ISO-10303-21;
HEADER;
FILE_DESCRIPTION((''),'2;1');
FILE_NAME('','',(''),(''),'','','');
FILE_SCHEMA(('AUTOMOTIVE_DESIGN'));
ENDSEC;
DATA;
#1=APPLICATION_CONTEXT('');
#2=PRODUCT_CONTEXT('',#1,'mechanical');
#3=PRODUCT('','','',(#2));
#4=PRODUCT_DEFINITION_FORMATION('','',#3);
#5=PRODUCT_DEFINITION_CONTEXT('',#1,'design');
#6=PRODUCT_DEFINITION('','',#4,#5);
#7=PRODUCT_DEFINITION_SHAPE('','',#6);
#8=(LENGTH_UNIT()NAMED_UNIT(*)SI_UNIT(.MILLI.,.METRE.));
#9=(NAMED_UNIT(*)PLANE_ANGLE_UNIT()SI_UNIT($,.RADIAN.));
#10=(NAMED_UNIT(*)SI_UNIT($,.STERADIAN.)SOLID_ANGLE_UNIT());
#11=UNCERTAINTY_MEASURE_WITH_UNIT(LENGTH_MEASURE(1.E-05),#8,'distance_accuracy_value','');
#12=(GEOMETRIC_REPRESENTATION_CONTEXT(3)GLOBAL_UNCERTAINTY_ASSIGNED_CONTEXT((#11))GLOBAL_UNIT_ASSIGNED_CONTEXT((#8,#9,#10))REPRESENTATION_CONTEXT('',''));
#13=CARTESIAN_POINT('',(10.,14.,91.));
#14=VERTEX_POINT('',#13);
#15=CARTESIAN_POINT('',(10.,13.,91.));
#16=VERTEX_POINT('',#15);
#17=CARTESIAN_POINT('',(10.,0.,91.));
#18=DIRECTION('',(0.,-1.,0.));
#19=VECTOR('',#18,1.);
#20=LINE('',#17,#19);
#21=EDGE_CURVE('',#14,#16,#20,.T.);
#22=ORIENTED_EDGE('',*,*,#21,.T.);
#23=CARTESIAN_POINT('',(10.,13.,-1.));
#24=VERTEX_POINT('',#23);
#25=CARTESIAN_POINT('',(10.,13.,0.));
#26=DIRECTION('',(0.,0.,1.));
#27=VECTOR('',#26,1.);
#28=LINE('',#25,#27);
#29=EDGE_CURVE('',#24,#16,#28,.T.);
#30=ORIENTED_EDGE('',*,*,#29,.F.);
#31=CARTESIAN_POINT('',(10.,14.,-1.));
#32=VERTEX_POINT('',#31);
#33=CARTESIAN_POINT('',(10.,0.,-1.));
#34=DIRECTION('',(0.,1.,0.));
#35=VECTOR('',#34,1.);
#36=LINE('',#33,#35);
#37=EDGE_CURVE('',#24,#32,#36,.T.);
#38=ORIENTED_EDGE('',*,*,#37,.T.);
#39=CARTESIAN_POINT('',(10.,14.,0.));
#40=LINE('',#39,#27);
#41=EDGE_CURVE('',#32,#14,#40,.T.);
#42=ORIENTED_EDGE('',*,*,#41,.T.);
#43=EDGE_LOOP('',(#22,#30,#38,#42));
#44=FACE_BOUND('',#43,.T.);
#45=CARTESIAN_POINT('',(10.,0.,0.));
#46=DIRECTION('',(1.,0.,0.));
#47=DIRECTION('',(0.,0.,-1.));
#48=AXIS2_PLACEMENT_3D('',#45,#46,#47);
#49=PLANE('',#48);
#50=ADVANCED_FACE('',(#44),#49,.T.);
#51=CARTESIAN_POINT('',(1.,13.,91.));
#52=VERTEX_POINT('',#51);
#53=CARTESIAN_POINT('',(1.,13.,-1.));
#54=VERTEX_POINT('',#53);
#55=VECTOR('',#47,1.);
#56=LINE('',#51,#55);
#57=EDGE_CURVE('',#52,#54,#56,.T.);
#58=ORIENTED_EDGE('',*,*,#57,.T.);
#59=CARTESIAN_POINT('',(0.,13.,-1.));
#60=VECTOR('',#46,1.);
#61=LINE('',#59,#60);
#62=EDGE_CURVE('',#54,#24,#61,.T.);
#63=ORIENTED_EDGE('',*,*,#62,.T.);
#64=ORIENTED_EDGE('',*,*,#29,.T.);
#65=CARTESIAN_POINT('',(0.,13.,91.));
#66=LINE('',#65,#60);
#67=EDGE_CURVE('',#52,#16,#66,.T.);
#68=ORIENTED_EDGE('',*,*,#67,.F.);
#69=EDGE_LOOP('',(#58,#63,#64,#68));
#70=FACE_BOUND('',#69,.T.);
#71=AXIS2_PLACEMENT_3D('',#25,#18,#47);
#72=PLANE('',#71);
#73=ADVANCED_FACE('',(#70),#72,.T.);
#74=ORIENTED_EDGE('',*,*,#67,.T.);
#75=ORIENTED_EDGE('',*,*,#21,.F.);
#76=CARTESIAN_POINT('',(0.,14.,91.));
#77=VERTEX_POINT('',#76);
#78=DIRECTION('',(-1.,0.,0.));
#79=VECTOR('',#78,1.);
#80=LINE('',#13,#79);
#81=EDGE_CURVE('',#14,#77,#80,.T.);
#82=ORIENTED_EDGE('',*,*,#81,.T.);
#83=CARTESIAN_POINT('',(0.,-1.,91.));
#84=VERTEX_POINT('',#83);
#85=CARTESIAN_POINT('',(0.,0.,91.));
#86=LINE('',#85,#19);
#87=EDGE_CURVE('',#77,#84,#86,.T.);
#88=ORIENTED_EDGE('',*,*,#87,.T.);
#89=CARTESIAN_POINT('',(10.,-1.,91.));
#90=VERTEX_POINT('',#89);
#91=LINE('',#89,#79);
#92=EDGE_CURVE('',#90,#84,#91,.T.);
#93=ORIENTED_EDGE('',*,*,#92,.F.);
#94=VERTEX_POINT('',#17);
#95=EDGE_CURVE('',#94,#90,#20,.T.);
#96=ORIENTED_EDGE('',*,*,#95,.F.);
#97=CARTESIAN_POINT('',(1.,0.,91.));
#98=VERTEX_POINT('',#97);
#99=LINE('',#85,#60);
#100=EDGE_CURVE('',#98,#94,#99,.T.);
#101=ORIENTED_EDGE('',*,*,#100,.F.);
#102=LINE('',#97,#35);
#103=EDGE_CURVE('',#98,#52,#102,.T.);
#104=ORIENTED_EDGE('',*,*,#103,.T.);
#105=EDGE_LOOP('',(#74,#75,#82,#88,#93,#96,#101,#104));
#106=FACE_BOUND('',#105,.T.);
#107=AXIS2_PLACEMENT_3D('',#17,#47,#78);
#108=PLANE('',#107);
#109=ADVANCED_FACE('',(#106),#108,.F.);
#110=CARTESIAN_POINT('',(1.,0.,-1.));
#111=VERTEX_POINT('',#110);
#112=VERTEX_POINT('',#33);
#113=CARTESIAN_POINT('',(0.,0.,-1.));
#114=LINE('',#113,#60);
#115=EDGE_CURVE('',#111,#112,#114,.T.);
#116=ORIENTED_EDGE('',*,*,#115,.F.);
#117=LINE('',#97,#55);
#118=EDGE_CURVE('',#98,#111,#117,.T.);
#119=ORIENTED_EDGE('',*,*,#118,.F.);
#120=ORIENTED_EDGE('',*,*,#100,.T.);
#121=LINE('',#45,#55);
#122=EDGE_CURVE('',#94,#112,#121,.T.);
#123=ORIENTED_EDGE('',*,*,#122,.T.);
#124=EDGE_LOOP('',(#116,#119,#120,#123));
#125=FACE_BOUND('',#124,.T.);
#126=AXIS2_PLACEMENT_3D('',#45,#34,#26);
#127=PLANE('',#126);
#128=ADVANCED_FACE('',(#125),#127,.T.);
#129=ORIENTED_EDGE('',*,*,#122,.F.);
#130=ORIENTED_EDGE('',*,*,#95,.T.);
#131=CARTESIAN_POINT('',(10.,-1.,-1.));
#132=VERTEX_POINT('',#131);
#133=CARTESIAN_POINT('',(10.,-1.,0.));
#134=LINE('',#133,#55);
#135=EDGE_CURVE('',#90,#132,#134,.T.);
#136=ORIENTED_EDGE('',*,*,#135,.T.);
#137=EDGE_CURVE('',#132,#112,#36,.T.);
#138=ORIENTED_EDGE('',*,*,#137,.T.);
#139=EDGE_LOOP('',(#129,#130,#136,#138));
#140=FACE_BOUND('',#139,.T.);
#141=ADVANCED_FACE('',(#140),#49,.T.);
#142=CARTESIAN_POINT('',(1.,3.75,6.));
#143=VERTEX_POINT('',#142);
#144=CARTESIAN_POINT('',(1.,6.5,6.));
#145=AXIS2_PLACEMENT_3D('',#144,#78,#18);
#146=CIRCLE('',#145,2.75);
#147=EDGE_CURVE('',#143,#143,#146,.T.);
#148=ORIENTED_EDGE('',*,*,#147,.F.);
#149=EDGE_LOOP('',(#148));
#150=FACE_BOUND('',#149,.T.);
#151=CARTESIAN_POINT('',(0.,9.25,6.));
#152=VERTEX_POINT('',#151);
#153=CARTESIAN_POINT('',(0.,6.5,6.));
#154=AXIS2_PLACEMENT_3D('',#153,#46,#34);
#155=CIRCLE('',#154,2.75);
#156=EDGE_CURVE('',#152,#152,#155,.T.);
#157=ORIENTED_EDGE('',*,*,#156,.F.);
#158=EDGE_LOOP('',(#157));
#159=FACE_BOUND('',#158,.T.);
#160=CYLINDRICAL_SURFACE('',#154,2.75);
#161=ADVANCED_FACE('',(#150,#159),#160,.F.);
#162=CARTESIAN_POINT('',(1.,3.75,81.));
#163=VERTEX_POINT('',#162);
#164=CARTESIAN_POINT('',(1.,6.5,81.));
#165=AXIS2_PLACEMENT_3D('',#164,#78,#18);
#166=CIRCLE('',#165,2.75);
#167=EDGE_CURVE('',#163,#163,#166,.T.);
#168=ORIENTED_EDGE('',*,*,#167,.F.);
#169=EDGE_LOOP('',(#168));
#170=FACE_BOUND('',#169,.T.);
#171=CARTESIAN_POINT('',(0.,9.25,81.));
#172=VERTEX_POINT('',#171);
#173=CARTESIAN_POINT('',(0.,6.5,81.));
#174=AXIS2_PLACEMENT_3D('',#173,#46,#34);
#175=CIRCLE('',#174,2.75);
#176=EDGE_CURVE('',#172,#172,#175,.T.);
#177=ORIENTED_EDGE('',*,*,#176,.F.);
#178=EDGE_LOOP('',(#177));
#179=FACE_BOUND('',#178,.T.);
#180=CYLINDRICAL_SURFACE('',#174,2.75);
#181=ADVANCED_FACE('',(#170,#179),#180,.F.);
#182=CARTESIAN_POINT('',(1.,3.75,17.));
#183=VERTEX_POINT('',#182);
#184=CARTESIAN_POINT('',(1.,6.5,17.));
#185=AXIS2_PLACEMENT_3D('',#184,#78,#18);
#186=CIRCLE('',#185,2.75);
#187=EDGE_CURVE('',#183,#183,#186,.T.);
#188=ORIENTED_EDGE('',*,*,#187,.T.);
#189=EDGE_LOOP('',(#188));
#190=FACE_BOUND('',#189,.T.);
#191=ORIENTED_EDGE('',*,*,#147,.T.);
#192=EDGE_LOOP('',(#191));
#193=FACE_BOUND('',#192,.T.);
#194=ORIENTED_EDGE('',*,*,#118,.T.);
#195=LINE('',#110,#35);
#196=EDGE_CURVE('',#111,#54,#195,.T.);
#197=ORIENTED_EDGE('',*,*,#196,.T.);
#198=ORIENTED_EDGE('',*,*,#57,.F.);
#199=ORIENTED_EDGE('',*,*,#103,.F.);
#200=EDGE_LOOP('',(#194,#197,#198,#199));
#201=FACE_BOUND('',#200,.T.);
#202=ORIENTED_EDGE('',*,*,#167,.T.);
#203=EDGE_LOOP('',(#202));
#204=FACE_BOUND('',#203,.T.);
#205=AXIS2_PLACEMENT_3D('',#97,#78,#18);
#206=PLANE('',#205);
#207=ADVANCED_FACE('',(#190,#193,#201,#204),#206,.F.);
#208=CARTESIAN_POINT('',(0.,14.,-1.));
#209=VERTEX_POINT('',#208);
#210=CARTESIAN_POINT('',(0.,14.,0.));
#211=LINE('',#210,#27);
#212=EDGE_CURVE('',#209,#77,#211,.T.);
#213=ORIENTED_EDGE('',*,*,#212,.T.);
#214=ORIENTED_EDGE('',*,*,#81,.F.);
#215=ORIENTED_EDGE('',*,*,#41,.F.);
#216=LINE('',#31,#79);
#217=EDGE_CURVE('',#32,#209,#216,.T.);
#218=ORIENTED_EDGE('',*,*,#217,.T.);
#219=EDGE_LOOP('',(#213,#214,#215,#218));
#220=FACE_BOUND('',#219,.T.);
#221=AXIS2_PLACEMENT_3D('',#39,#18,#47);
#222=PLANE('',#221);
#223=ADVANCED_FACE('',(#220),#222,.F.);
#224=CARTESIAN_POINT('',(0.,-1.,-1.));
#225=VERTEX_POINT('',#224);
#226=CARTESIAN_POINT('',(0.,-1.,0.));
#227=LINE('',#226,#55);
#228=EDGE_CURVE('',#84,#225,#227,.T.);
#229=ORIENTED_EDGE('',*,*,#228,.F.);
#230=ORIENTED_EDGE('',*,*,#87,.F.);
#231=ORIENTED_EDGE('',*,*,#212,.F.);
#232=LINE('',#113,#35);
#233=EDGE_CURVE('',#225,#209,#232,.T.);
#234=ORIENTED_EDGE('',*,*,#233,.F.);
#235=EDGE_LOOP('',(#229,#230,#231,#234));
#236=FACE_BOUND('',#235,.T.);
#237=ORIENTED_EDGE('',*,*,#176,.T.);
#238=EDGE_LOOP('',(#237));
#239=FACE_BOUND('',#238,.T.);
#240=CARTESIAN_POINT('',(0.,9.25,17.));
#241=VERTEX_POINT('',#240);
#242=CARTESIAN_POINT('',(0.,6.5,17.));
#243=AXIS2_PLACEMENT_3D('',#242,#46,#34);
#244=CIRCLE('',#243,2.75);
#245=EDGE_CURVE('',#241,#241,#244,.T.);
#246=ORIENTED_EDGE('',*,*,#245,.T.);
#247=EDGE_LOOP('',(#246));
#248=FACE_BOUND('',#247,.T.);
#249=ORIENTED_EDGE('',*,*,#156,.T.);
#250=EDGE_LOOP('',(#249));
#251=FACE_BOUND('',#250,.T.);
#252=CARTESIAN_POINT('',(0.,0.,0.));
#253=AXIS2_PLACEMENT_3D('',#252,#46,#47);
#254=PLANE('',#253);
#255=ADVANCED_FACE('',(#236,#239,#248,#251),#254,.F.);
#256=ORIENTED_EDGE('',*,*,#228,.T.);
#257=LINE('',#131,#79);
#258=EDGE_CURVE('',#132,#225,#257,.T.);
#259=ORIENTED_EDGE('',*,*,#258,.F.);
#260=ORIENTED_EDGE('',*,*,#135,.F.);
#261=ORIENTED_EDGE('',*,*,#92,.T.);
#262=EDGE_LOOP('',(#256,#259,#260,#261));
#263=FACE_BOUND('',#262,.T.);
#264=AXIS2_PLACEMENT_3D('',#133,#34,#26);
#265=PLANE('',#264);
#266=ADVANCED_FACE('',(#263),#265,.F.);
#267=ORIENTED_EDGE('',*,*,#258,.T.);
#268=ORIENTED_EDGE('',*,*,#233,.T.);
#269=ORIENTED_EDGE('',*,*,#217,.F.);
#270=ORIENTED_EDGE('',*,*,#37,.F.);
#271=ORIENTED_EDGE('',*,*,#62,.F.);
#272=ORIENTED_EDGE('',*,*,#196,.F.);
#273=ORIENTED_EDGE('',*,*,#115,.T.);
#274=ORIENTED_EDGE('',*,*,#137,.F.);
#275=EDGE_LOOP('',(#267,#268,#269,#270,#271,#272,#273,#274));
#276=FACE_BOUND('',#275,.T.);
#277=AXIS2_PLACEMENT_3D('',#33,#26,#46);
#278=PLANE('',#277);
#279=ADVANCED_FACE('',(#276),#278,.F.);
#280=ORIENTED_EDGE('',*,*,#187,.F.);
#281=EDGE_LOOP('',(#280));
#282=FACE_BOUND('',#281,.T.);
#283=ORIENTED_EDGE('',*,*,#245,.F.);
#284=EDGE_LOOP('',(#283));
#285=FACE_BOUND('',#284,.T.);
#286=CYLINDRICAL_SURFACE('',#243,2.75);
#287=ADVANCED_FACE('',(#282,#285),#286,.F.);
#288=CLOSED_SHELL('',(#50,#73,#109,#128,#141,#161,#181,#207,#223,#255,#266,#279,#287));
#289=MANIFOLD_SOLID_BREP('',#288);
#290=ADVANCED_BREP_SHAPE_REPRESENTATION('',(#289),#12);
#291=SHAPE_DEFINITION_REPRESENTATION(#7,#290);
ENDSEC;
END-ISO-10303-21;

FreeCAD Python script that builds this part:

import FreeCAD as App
import Part
import Sketcher
from FreeCAD import Vector

doc = App.newDocument("Part")
body = doc.addObject("PartDesign::Body", "Body")

# Sketch on YZ plane
sketch1 = body.newObject("Sketcher::SketchObject", "Sketch")
sketch1.AttachmentSupport = (doc.getObject("YZ_Plane"), [""])
sketch1.MapMode = "FlatFace"
sketch1.addGeometry(Part.LineSegment(Vector(-1, 91, 0), Vector(-1, -1, 0)), False)
sketch1.addGeometry(Part.LineSegment(Vector(-1, -1, 0), Vector(14, -1, 0)), False)
sketch1.addGeometry(Part.LineSegment(Vector(14, -1, 0), Vector(14, 91, 0)), False)
sketch1.addGeometry(Part.LineSegment(Vector(14, 91, 0), Vector(-1, 91, 0)), False)
sketch1.addGeometry(Part.LineSegment(Vector(13, 0, 0), Vector(0, 0, 0)), False)
sketch1.addGeometry(Part.LineSegment(Vector(0, 0, 0), Vector(0, 90, 0)), False)
sketch1.addGeometry(Part.LineSegment(Vector(0, 90, 0), Vector(13, 90, 0)), False)
sketch1.addGeometry(Part.LineSegment(Vector(13, 90, 0), Vector(13, 0, 0)), False)
sketch1.addConstraint(Sketcher.Constraint("Coincident", 0, 2, 1, 1))
sketch1.addConstraint(Sketcher.Constraint("Coincident", 1, 2, 2, 1))
sketch1.addConstraint(Sketcher.Constraint("Coincident", 2, 2, 3, 1))
sketch1.addConstraint(Sketcher.Constraint("Coincident", 3, 2, 0, 1))
sketch1.addConstraint(Sketcher.Constraint("Coincident", 4, 2, 5, 1))
sketch1.addConstraint(Sketcher.Constraint("Coincident", 5, 2, 6, 1))
sketch1.addConstraint(Sketcher.Constraint("Coincident", 6, 2, 7, 1))
sketch1.addConstraint(Sketcher.Constraint("Coincident", 7, 2, 4, 1))
sketch1.addConstraint(Sketcher.Constraint("Vertical", 0))
sketch1.addConstraint(Sketcher.Constraint("Horizontal", 1))
sketch1.addConstraint(Sketcher.Constraint("Vertical", 2))
sketch1.addConstraint(Sketcher.Constraint("Horizontal", 3))
sketch1.addConstraint(Sketcher.Constraint("Horizontal", 4))
sketch1.addConstraint(Sketcher.Constraint("Vertical", 5))
sketch1.addConstraint(Sketcher.Constraint("Horizontal", 6))
sketch1.addConstraint(Sketcher.Constraint("Vertical", 7))
sketch1.addConstraint(Sketcher.Constraint("Coincident", 4, 2, -1, 1))
sketch1.addConstraint(Sketcher.Constraint("DistanceX", 1, 1, 1, 2, 15.0))
sketch1.addConstraint(Sketcher.Constraint("DistanceX", 4, 2, 4, 1, 13.0))
sketch1.addConstraint(Sketcher.Constraint("DistanceY", 0, 2, 0, 1, 92.0))
sketch1.addConstraint(Sketcher.Constraint("DistanceY", 5, 1, 5, 2, 90.0))
sketch1.addConstraint(Sketcher.Constraint("DistanceX", 0, 2, -1, 1, 1.0))
sketch1.addConstraint(Sketcher.Constraint("DistanceY", 0, 2, -1, 1, 1.0))
pad1 = body.newObject("PartDesign::Pad", "Pad")
pad1.Profile = sketch1
pad1.Length = 10

# Sketch on XY plane
sketch2 = body.newObject("Sketcher::SketchObject", "Sketch001")
sketch2.AttachmentSupport = (doc.getObject("XY_Plane"), [""])
sketch2.MapMode = "FlatFace"
sketch2.AttachmentOffset = App.Placement(Vector(0, 0, -1), App.Rotation())
sketch2.addGeometry(Part.LineSegment(Vector(1, 0, 0), Vector(1, 13, 0)), False)
sketch2.addGeometry(Part.LineSegment(Vector(1, 13, 0), Vector(10, 13, 0)), False)
sketch2.addGeometry(Part.LineSegment(Vector(10, 13, 0), Vector(10, 0, 0)), False)
sketch2.addGeometry(Part.LineSegment(Vector(10, 0, 0), Vector(1, 0, 0)), False)
sketch2.addConstraint(Sketcher.Constraint("Coincident", 0, 2, 1, 1))
sketch2.addConstraint(Sketcher.Constraint("Coincident", 1, 2, 2, 1))
sketch2.addConstraint(Sketcher.Constraint("Coincident", 2, 2, 3, 1))
sketch2.addConstraint(Sketcher.Constraint("Coincident", 3, 2, 0, 1))
sketch2.addConstraint(Sketcher.Constraint("Vertical", 0))
sketch2.addConstraint(Sketcher.Constraint("Horizontal", 1))
sketch2.addConstraint(Sketcher.Constraint("Vertical", 2))
sketch2.addConstraint(Sketcher.Constraint("Horizontal", 3))
sketch2.addConstraint(Sketcher.Constraint("PointOnObject", 2, 2, -1))
sketch2.addConstraint(Sketcher.Constraint("DistanceX", 1, 1, 1, 2, 9.0))
sketch2.addConstraint(Sketcher.Constraint("DistanceY", 0, 1, 0, 2, 13.0))
sketch2.addConstraint(Sketcher.Constraint("DistanceX", -1, 1, 0, 2, 1.0))
pocket1 = body.newObject("PartDesign::Pocket", "Pocket")
pocket1.Profile = sketch2
pocket1.Type = "ThroughAll"
pocket1.Reversed = True

# Sketch on YZ plane
sketch3 = body.newObject("Sketcher::SketchObject", "Sketch002")
sketch3.AttachmentSupport = (doc.getObject("YZ_Plane"), [""])
sketch3.MapMode = "FlatFace"
sketch3.addGeometry(Part.LineSegment(Vector(13, 90, 0), Vector(13, 0, 0)), False)
sketch3.addGeometry(Part.LineSegment(Vector(13, 0, 0), Vector(0, 0, 0)), False)
sketch3.addGeometry(Part.LineSegment(Vector(0, 0, 0), Vector(0, 90, 0)), False)
sketch3.addGeometry(Part.LineSegment(Vector(0, 90, 0), Vector(13, 90, 0)), False)
sketch3.addConstraint(Sketcher.Constraint("Coincident", 0, 2, 1, 1))
sketch3.addConstraint(Sketcher.Constraint("Coincident", 1, 2, 2, 1))
sketch3.addConstraint(Sketcher.Constraint("Coincident", 2, 2, 3, 1))
sketch3.addConstraint(Sketcher.Constraint("Coincident", 3, 2, 0, 1))
sketch3.addConstraint(Sketcher.Constraint("Vertical", 0))
sketch3.addConstraint(Sketcher.Constraint("Horizontal", 1))
sketch3.addConstraint(Sketcher.Constraint("Vertical", 2))
sketch3.addConstraint(Sketcher.Constraint("Horizontal", 3))
sketch3.addConstraint(Sketcher.Constraint("Coincident", 1, 2, -1, 1))
sketch3.addConstraint(Sketcher.Constraint("DistanceX", 1, 2, 1, 1, 13.0))
sketch3.addConstraint(Sketcher.Constraint("DistanceY", 0, 2, 0, 1, 90.0))
pad2 = body.newObject("PartDesign::Pad", "Pad001")
pad2.Profile = sketch3
pad2.Length = 1

# Sketch on YZ plane
sketch4 = body.newObject("Sketcher::SketchObject", "Sketch003")
sketch4.AttachmentSupport = (doc.getObject("YZ_Plane"), [""])
sketch4.MapMode = "FlatFace"
sketch4.AttachmentOffset = App.Placement(Vector(0, 0, 1), App.Rotation())
sketch4.addGeometry(Part.Circle(Vector(6.5, 17, 0), Vector(0, 0, 1), 2.8), False)
sketch4.addGeometry(Part.Circle(Vector(6.5, 81, 0), Vector(0, 0, 1), 2.8), False)
sketch4.addGeometry(Part.Circle(Vector(6.5, 6, 0), Vector(0, 0, 1), 2.8), False)
sketch4.addConstraint(Sketcher.Constraint("Equal", 0, 1))
sketch4.addConstraint(Sketcher.Constraint("Equal", 1, 2))
sketch4.addConstraint(Sketcher.Constraint("Vertical", 0, 3, 1, 3))
sketch4.addConstraint(Sketcher.Constraint("Vertical", 1, 3, 2, 3))
sketch4.addConstraint(Sketcher.Constraint("Diameter", 0, 5.5))
sketch4.addConstraint(Sketcher.Constraint("DistanceY", -1, 1, 0, 3, 17.0))
sketch4.addConstraint(Sketcher.Constraint("DistanceY", -1, 1, 1, 3, 81.0))
sketch4.addConstraint(Sketcher.Constraint("DistanceY", -1, 1, 2, 3, 6.0))
sketch4.addConstraint(Sketcher.Constraint("DistanceX", -1, 1, 0, 3, 6.5))
pocket2 = body.newObject("PartDesign::Pocket", "Pocket001")
pocket2.Profile = sketch4
pocket2.Type = "ThroughAll"
pocket2.Midplane = True

doc.recompute()
